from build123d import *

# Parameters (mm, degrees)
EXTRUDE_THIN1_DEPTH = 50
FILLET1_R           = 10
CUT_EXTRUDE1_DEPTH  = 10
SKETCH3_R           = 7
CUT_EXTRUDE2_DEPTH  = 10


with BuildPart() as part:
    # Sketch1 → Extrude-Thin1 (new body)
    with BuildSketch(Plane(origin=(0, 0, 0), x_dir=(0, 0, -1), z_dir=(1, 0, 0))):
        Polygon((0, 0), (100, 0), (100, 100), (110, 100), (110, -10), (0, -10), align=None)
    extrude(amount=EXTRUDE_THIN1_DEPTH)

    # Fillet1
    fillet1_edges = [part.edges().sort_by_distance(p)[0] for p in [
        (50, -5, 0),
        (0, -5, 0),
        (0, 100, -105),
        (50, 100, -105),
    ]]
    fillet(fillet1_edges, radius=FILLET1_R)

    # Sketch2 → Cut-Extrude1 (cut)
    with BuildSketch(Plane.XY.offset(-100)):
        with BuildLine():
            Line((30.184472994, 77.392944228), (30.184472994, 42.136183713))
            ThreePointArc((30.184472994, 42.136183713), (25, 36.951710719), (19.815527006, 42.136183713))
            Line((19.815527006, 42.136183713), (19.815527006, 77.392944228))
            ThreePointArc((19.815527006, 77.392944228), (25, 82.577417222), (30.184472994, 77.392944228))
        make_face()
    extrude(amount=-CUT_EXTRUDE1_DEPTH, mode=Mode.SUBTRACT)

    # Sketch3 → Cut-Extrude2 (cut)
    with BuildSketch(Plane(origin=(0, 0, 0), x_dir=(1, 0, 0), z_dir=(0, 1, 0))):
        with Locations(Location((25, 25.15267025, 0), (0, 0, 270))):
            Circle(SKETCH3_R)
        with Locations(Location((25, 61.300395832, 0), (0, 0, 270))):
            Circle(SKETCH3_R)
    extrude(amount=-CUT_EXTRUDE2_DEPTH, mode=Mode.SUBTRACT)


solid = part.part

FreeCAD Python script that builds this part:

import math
import FreeCAD as App
import Part
import Sketcher

V = App.Vector


def edges_at(feature, points):
    """Names of the edges that pass closest to the given points."""
    edges = feature.Shape.Edges
    near = lambda p: min(range(len(edges)), key=lambda i: edges[i].distToShape(Part.Vertex(*p))[0])
    return sorted({f"Edge{near(p) + 1}" for p in points})

doc = App.newDocument("Part")
params = doc.addObject("Spreadsheet::Sheet", "Params")
for row, (alias, value) in enumerate([
    ("sketch1_width", "10 mm"),
    ("sketch1_width2", "110 mm"),
    ("pad1_length", "50 mm"),
    ("fillet_radius", "10 mm"),
    ("pocket1_length", "10 mm"),
    ("sketch3_diameter", "14 mm"),
    ("pocket2_length", "10 mm"),
], start=1):
    params.set(f"A{row}", alias)
    params.set(f"B{row}", "=" + value)
    params.setAlias(f"B{row}", alias)

body = doc.addObject("PartDesign::Body", "Body")

# Sketch on YZ plane
sketch1 = body.newObject("Sketcher::SketchObject", "Sketch")
sketch1.AttachmentSupport = (doc.getObject("YZ_Plane"), [""])
sketch1.MapMode = "FlatFace"
sketch1.addGeometry(Part.LineSegment(V(0, -100, 0), V(0, 0, 0)), False)
sketch1.addGeometry(Part.LineSegment(V(0, 0, 0), V(-10, 0, 0)), False)
sketch1.addGeometry(Part.LineSegment(V(-10, 0, 0), V(-10, -110, 0)), False)
sketch1.addGeometry(Part.LineSegment(V(-10, -110, 0), V(100, -110, 0)), False)
sketch1.addGeometry(Part.LineSegment(V(100, -110, 0), V(100, -100, 0)), False)
sketch1.addGeometry(Part.LineSegment(V(100, -100, 0), V(0, -100, 0)), False)
sketch1.addConstraint(Sketcher.Constraint("Coincident", 0, 2, 1, 1))
sketch1.addConstraint(Sketcher.Constraint("Coincident", 1, 2, 2, 1))
sketch1.addConstraint(Sketcher.Constraint("Coincident", 2, 2, 3, 1))
sketch1.addConstraint(Sketcher.Constraint("Coincident", 3, 2, 4, 1))
sketch1.addConstraint(Sketcher.Constraint("Coincident", 4, 2, 5, 1))
sketch1.addConstraint(Sketcher.Constraint("Coincident", 5, 2, 0, 1))
sketch1.addConstraint(Sketcher.Constraint("Vertical", 0))
sketch1.addConstraint(Sketcher.Constraint("Horizontal", 1))
sketch1.addConstraint(Sketcher.Constraint("Vertical", 2))
sketch1.addConstraint(Sketcher.Constraint("Horizontal", 3))
sketch1.addConstraint(Sketcher.Constraint("Vertical", 4))
sketch1.addConstraint(Sketcher.Constraint("Horizontal", 5))
sketch1.addConstraint(Sketcher.Constraint("Coincident", 0, 2, -1, 1))
sketch1.addConstraint(Sketcher.Constraint("Equal", 5, 0))
sketch1.addConstraint(Sketcher.Constraint("Equal", 3, 2))
sketch1.addConstraint(Sketcher.Constraint("DistanceX", 1, 2, 1, 1, 10.0))
sketch1.addConstraint(Sketcher.Constraint("DistanceX", 3, 1, 3, 2, 110.0))
sketch1.setExpression("Constraints[15]", "Params.sketch1_width")
sketch1.setExpression("Constraints[16]", "Params.sketch1_width2")
pad1 = body.newObject("PartDesign::Pad", "Pad")
pad1.Profile = sketch1
pad1.setExpression("Length", "Params.pad1_length")
doc.recompute()

fillet = body.newObject("PartDesign::Fillet", "Fillet")
fillet.Base = (pad1, edges_at(pad1, [
    (50, -5, 0),
    (0, -5, 0),
    (0, 100, -105),
    (50, 100, -105),
]))
fillet.setExpression("Radius", "Params.fillet_radius")

# Sketch on XY plane
sketch2 = body.newObject("Sketcher::SketchObject", "Sketch001")
sketch2.AttachmentSupport = (doc.getObject("XY_Plane"), [""])
sketch2.MapMode = "FlatFace"
sketch2.AttachmentOffset = App.Placement(V(0, 0, -100), App.Rotation())
sketch2.addGeometry(Part.LineSegment(V(30, 42, 0), V(30, 77, 0)), False)
sketch2.addGeometry(Part.ArcOfCircle(Part.Circle(V(25, 77, 0), V(0, 0, 1), 5), math.radians(0), math.radians(180)), False)
sketch2.addGeometry(Part.LineSegment(V(20, 77, 0), V(20, 42, 0)), False)
sketch2.addGeometry(Part.ArcOfCircle(Part.Circle(V(25, 42, 0), V(0, 0, 1), 5), math.radians(180), math.radians(360)), False)
sketch2.addConstraint(Sketcher.Constraint("Tangent", 0, 2, 1, 1))
sketch2.addConstraint(Sketcher.Constraint("Tangent", 1, 2, 2, 1))
sketch2.addConstraint(Sketcher.Constraint("Tangent", 2, 2, 3, 1))
sketch2.addConstraint(Sketcher.Constraint("Tangent", 3, 2, 0, 1))
sketch2.addConstraint(Sketcher.Constraint("Vertical", 0))
sketch2.addConstraint(Sketcher.Constraint("Vertical", 2))
sketch2.addConstraint(Sketcher.Constraint("DistanceX", -1, 1, 1, 3, 25.0))
sketch2.addConstraint(Sketcher.Constraint("Radius", 1, 5.184473))
sketch2.addConstraint(Sketcher.Constraint("DistanceY", 0, 1, 0, 2, 35.256761))
sketch2.addConstraint(Sketcher.Constraint("DistanceY", -1, 1, 1, 3, 77.392944))
pocket1 = body.newObject("PartDesign::Pocket", "Pocket")
pocket1.Profile = sketch2
pocket1.setExpression("Length", "Params.pocket1_length")

# Sketch on XZ plane
sketch3 = body.newObject("Sketcher::SketchObject", "Sketch002")
sketch3.AttachmentSupport = (doc.getObject("XZ_Plane"), [""])
sketch3.MapMode = "FlatFace"
sketch3.addGeometry(Part.Circle(V(25, -25, 0), V(0, 0, 1), 7), False)
sketch3.addGeometry(Part.Circle(V(25, -61, 0), V(0, 0, 1), 7), False)
sketch3.addConstraint(Sketcher.Constraint("Equal", 0, 1))
sketch3.addConstraint(Sketcher.Constraint("Vertical", 0, 3, 1, 3))
sketch3.addConstraint(Sketcher.Constraint("Diameter", 0, 14.0))
sketch3.addConstraint(Sketcher.Constraint("DistanceX", -1, 1, 0, 3, 25.0))
sketch3.addConstraint(Sketcher.Constraint("DistanceY", 0, 3, -1, 1, 25.15267))
sketch3.addConstraint(Sketcher.Constraint("DistanceY", 1, 3, -1, 1, 61.300396))
sketch3.setExpression("Constraints[2]", "Params.sketch3_diameter")
pocket2 = body.newObject("PartDesign::Pocket", "Pocket001")
pocket2.Profile = sketch3
pocket2.setExpression("Length", "Params.pocket2_length")
pocket2.Reversed = True

doc.recompute()
